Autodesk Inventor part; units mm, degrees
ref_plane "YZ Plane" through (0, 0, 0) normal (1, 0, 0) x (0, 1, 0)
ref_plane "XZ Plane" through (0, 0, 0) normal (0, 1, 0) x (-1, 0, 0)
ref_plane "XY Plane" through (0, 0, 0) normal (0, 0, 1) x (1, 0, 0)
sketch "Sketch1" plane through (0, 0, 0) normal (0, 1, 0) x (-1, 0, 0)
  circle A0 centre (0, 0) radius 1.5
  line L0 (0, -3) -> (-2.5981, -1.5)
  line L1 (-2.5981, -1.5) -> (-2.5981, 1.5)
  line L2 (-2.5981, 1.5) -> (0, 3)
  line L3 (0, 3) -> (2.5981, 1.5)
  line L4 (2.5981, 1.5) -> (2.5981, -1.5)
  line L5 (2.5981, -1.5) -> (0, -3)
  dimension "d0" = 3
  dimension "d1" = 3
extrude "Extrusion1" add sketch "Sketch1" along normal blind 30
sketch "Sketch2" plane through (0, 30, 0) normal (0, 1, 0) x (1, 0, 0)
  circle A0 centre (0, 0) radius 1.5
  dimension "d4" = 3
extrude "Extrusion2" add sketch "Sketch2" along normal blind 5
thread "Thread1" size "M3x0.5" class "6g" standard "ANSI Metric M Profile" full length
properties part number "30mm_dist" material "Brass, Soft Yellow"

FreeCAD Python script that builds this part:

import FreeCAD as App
import Part
import Sketcher

V = App.Vector

doc = App.newDocument("Part")
body = doc.addObject("PartDesign::Body", "Body")
body.AllowCompound = True

sketch1 = body.newObject("Sketcher::SketchObject", "Sketch")
sketch1.AttachmentSupport = (doc.getObject("XZ_Plane"), [""])
sketch1.MapMode = "FlatFace"
sketch1.addGeometry([
    Part.LineSegment(V(2.6, -1.5, 0), V(0, -3, 0)),
    Part.LineSegment(V(0, -3, 0), V(-2.6, -1.5, 0)),
    Part.LineSegment(V(-2.6, -1.5, 0), V(-2.6, 1.5, 0)),
    Part.LineSegment(V(-2.6, 1.5, 0), V(0, 3, 0)),
    Part.LineSegment(V(0, 3, 0), V(2.6, 1.5, 0)),
    Part.LineSegment(V(2.6, 1.5, 0), V(2.6, -1.5, 0)),
    Part.Circle(V(0, 0, 0), V(0, 0, 1), 1.5),
], False)
sketch1.addConstraint([
    Sketcher.Constraint("Coincident", 0, 2, 1, 1),
    Sketcher.Constraint("Coincident", 1, 2, 2, 1),
    Sketcher.Constraint("Coincident", 2, 2, 3, 1),
    Sketcher.Constraint("Coincident", 3, 2, 4, 1),
    Sketcher.Constraint("Coincident", 4, 2, 5, 1),
    Sketcher.Constraint("Coincident", 5, 2, 0, 1),
    Sketcher.Constraint("Vertical", 2),
    Sketcher.Constraint("Vertical", 5),
    Sketcher.Constraint("Coincident", 6, 3, -1, 1),
    Sketcher.Constraint("Symmetric", 0, 2, 3, 2, -1, 1),
    Sketcher.Constraint("Symmetric", 1, 2, 4, 2, -1, 1),
    Sketcher.Constraint("PointOnObject", 0, 2, -2),
    Sketcher.Constraint("Parallel", 0, 3),
    Sketcher.Constraint("Horizontal", 2, 2, 4, 2),
    Sketcher.Constraint("Diameter", 6, 3.0),
    Sketcher.Constraint("DistanceY", 2, 1, 2, 2, 3.0),
    Sketcher.Constraint("Distance", 0, 3.0),
    Sketcher.Constraint("DistanceY", 0, 2, -1, 1, 3.0),
])
pad1 = body.newObject("PartDesign::Pad", "Pad")
pad1.Profile = sketch1
pad1.Length = 30
pad1.Reversed = True

sketch2 = body.newObject("Sketcher::SketchObject", "Sketch001")
sketch2.AttachmentSupport = (doc.getObject("XZ_Plane"), [""])
sketch2.MapMode = "FlatFace"
sketch2.AttachmentOffset = App.Placement(V(0, 0, -30), App.Rotation())
sketch2.addGeometry(Part.Circle(V(0, 0, 0), V(0, 0, 1), 1.5), False)
sketch2.addConstraint([
    Sketcher.Constraint("Coincident", 0, 3, -1, 1),
    Sketcher.Constraint("Diameter", 0, 3.0),
])
pad2 = body.newObject("PartDesign::Pad", "Pad001")
pad2.Profile = sketch2
pad2.Length = 5
pad2.Reversed = True

doc.recompute()
